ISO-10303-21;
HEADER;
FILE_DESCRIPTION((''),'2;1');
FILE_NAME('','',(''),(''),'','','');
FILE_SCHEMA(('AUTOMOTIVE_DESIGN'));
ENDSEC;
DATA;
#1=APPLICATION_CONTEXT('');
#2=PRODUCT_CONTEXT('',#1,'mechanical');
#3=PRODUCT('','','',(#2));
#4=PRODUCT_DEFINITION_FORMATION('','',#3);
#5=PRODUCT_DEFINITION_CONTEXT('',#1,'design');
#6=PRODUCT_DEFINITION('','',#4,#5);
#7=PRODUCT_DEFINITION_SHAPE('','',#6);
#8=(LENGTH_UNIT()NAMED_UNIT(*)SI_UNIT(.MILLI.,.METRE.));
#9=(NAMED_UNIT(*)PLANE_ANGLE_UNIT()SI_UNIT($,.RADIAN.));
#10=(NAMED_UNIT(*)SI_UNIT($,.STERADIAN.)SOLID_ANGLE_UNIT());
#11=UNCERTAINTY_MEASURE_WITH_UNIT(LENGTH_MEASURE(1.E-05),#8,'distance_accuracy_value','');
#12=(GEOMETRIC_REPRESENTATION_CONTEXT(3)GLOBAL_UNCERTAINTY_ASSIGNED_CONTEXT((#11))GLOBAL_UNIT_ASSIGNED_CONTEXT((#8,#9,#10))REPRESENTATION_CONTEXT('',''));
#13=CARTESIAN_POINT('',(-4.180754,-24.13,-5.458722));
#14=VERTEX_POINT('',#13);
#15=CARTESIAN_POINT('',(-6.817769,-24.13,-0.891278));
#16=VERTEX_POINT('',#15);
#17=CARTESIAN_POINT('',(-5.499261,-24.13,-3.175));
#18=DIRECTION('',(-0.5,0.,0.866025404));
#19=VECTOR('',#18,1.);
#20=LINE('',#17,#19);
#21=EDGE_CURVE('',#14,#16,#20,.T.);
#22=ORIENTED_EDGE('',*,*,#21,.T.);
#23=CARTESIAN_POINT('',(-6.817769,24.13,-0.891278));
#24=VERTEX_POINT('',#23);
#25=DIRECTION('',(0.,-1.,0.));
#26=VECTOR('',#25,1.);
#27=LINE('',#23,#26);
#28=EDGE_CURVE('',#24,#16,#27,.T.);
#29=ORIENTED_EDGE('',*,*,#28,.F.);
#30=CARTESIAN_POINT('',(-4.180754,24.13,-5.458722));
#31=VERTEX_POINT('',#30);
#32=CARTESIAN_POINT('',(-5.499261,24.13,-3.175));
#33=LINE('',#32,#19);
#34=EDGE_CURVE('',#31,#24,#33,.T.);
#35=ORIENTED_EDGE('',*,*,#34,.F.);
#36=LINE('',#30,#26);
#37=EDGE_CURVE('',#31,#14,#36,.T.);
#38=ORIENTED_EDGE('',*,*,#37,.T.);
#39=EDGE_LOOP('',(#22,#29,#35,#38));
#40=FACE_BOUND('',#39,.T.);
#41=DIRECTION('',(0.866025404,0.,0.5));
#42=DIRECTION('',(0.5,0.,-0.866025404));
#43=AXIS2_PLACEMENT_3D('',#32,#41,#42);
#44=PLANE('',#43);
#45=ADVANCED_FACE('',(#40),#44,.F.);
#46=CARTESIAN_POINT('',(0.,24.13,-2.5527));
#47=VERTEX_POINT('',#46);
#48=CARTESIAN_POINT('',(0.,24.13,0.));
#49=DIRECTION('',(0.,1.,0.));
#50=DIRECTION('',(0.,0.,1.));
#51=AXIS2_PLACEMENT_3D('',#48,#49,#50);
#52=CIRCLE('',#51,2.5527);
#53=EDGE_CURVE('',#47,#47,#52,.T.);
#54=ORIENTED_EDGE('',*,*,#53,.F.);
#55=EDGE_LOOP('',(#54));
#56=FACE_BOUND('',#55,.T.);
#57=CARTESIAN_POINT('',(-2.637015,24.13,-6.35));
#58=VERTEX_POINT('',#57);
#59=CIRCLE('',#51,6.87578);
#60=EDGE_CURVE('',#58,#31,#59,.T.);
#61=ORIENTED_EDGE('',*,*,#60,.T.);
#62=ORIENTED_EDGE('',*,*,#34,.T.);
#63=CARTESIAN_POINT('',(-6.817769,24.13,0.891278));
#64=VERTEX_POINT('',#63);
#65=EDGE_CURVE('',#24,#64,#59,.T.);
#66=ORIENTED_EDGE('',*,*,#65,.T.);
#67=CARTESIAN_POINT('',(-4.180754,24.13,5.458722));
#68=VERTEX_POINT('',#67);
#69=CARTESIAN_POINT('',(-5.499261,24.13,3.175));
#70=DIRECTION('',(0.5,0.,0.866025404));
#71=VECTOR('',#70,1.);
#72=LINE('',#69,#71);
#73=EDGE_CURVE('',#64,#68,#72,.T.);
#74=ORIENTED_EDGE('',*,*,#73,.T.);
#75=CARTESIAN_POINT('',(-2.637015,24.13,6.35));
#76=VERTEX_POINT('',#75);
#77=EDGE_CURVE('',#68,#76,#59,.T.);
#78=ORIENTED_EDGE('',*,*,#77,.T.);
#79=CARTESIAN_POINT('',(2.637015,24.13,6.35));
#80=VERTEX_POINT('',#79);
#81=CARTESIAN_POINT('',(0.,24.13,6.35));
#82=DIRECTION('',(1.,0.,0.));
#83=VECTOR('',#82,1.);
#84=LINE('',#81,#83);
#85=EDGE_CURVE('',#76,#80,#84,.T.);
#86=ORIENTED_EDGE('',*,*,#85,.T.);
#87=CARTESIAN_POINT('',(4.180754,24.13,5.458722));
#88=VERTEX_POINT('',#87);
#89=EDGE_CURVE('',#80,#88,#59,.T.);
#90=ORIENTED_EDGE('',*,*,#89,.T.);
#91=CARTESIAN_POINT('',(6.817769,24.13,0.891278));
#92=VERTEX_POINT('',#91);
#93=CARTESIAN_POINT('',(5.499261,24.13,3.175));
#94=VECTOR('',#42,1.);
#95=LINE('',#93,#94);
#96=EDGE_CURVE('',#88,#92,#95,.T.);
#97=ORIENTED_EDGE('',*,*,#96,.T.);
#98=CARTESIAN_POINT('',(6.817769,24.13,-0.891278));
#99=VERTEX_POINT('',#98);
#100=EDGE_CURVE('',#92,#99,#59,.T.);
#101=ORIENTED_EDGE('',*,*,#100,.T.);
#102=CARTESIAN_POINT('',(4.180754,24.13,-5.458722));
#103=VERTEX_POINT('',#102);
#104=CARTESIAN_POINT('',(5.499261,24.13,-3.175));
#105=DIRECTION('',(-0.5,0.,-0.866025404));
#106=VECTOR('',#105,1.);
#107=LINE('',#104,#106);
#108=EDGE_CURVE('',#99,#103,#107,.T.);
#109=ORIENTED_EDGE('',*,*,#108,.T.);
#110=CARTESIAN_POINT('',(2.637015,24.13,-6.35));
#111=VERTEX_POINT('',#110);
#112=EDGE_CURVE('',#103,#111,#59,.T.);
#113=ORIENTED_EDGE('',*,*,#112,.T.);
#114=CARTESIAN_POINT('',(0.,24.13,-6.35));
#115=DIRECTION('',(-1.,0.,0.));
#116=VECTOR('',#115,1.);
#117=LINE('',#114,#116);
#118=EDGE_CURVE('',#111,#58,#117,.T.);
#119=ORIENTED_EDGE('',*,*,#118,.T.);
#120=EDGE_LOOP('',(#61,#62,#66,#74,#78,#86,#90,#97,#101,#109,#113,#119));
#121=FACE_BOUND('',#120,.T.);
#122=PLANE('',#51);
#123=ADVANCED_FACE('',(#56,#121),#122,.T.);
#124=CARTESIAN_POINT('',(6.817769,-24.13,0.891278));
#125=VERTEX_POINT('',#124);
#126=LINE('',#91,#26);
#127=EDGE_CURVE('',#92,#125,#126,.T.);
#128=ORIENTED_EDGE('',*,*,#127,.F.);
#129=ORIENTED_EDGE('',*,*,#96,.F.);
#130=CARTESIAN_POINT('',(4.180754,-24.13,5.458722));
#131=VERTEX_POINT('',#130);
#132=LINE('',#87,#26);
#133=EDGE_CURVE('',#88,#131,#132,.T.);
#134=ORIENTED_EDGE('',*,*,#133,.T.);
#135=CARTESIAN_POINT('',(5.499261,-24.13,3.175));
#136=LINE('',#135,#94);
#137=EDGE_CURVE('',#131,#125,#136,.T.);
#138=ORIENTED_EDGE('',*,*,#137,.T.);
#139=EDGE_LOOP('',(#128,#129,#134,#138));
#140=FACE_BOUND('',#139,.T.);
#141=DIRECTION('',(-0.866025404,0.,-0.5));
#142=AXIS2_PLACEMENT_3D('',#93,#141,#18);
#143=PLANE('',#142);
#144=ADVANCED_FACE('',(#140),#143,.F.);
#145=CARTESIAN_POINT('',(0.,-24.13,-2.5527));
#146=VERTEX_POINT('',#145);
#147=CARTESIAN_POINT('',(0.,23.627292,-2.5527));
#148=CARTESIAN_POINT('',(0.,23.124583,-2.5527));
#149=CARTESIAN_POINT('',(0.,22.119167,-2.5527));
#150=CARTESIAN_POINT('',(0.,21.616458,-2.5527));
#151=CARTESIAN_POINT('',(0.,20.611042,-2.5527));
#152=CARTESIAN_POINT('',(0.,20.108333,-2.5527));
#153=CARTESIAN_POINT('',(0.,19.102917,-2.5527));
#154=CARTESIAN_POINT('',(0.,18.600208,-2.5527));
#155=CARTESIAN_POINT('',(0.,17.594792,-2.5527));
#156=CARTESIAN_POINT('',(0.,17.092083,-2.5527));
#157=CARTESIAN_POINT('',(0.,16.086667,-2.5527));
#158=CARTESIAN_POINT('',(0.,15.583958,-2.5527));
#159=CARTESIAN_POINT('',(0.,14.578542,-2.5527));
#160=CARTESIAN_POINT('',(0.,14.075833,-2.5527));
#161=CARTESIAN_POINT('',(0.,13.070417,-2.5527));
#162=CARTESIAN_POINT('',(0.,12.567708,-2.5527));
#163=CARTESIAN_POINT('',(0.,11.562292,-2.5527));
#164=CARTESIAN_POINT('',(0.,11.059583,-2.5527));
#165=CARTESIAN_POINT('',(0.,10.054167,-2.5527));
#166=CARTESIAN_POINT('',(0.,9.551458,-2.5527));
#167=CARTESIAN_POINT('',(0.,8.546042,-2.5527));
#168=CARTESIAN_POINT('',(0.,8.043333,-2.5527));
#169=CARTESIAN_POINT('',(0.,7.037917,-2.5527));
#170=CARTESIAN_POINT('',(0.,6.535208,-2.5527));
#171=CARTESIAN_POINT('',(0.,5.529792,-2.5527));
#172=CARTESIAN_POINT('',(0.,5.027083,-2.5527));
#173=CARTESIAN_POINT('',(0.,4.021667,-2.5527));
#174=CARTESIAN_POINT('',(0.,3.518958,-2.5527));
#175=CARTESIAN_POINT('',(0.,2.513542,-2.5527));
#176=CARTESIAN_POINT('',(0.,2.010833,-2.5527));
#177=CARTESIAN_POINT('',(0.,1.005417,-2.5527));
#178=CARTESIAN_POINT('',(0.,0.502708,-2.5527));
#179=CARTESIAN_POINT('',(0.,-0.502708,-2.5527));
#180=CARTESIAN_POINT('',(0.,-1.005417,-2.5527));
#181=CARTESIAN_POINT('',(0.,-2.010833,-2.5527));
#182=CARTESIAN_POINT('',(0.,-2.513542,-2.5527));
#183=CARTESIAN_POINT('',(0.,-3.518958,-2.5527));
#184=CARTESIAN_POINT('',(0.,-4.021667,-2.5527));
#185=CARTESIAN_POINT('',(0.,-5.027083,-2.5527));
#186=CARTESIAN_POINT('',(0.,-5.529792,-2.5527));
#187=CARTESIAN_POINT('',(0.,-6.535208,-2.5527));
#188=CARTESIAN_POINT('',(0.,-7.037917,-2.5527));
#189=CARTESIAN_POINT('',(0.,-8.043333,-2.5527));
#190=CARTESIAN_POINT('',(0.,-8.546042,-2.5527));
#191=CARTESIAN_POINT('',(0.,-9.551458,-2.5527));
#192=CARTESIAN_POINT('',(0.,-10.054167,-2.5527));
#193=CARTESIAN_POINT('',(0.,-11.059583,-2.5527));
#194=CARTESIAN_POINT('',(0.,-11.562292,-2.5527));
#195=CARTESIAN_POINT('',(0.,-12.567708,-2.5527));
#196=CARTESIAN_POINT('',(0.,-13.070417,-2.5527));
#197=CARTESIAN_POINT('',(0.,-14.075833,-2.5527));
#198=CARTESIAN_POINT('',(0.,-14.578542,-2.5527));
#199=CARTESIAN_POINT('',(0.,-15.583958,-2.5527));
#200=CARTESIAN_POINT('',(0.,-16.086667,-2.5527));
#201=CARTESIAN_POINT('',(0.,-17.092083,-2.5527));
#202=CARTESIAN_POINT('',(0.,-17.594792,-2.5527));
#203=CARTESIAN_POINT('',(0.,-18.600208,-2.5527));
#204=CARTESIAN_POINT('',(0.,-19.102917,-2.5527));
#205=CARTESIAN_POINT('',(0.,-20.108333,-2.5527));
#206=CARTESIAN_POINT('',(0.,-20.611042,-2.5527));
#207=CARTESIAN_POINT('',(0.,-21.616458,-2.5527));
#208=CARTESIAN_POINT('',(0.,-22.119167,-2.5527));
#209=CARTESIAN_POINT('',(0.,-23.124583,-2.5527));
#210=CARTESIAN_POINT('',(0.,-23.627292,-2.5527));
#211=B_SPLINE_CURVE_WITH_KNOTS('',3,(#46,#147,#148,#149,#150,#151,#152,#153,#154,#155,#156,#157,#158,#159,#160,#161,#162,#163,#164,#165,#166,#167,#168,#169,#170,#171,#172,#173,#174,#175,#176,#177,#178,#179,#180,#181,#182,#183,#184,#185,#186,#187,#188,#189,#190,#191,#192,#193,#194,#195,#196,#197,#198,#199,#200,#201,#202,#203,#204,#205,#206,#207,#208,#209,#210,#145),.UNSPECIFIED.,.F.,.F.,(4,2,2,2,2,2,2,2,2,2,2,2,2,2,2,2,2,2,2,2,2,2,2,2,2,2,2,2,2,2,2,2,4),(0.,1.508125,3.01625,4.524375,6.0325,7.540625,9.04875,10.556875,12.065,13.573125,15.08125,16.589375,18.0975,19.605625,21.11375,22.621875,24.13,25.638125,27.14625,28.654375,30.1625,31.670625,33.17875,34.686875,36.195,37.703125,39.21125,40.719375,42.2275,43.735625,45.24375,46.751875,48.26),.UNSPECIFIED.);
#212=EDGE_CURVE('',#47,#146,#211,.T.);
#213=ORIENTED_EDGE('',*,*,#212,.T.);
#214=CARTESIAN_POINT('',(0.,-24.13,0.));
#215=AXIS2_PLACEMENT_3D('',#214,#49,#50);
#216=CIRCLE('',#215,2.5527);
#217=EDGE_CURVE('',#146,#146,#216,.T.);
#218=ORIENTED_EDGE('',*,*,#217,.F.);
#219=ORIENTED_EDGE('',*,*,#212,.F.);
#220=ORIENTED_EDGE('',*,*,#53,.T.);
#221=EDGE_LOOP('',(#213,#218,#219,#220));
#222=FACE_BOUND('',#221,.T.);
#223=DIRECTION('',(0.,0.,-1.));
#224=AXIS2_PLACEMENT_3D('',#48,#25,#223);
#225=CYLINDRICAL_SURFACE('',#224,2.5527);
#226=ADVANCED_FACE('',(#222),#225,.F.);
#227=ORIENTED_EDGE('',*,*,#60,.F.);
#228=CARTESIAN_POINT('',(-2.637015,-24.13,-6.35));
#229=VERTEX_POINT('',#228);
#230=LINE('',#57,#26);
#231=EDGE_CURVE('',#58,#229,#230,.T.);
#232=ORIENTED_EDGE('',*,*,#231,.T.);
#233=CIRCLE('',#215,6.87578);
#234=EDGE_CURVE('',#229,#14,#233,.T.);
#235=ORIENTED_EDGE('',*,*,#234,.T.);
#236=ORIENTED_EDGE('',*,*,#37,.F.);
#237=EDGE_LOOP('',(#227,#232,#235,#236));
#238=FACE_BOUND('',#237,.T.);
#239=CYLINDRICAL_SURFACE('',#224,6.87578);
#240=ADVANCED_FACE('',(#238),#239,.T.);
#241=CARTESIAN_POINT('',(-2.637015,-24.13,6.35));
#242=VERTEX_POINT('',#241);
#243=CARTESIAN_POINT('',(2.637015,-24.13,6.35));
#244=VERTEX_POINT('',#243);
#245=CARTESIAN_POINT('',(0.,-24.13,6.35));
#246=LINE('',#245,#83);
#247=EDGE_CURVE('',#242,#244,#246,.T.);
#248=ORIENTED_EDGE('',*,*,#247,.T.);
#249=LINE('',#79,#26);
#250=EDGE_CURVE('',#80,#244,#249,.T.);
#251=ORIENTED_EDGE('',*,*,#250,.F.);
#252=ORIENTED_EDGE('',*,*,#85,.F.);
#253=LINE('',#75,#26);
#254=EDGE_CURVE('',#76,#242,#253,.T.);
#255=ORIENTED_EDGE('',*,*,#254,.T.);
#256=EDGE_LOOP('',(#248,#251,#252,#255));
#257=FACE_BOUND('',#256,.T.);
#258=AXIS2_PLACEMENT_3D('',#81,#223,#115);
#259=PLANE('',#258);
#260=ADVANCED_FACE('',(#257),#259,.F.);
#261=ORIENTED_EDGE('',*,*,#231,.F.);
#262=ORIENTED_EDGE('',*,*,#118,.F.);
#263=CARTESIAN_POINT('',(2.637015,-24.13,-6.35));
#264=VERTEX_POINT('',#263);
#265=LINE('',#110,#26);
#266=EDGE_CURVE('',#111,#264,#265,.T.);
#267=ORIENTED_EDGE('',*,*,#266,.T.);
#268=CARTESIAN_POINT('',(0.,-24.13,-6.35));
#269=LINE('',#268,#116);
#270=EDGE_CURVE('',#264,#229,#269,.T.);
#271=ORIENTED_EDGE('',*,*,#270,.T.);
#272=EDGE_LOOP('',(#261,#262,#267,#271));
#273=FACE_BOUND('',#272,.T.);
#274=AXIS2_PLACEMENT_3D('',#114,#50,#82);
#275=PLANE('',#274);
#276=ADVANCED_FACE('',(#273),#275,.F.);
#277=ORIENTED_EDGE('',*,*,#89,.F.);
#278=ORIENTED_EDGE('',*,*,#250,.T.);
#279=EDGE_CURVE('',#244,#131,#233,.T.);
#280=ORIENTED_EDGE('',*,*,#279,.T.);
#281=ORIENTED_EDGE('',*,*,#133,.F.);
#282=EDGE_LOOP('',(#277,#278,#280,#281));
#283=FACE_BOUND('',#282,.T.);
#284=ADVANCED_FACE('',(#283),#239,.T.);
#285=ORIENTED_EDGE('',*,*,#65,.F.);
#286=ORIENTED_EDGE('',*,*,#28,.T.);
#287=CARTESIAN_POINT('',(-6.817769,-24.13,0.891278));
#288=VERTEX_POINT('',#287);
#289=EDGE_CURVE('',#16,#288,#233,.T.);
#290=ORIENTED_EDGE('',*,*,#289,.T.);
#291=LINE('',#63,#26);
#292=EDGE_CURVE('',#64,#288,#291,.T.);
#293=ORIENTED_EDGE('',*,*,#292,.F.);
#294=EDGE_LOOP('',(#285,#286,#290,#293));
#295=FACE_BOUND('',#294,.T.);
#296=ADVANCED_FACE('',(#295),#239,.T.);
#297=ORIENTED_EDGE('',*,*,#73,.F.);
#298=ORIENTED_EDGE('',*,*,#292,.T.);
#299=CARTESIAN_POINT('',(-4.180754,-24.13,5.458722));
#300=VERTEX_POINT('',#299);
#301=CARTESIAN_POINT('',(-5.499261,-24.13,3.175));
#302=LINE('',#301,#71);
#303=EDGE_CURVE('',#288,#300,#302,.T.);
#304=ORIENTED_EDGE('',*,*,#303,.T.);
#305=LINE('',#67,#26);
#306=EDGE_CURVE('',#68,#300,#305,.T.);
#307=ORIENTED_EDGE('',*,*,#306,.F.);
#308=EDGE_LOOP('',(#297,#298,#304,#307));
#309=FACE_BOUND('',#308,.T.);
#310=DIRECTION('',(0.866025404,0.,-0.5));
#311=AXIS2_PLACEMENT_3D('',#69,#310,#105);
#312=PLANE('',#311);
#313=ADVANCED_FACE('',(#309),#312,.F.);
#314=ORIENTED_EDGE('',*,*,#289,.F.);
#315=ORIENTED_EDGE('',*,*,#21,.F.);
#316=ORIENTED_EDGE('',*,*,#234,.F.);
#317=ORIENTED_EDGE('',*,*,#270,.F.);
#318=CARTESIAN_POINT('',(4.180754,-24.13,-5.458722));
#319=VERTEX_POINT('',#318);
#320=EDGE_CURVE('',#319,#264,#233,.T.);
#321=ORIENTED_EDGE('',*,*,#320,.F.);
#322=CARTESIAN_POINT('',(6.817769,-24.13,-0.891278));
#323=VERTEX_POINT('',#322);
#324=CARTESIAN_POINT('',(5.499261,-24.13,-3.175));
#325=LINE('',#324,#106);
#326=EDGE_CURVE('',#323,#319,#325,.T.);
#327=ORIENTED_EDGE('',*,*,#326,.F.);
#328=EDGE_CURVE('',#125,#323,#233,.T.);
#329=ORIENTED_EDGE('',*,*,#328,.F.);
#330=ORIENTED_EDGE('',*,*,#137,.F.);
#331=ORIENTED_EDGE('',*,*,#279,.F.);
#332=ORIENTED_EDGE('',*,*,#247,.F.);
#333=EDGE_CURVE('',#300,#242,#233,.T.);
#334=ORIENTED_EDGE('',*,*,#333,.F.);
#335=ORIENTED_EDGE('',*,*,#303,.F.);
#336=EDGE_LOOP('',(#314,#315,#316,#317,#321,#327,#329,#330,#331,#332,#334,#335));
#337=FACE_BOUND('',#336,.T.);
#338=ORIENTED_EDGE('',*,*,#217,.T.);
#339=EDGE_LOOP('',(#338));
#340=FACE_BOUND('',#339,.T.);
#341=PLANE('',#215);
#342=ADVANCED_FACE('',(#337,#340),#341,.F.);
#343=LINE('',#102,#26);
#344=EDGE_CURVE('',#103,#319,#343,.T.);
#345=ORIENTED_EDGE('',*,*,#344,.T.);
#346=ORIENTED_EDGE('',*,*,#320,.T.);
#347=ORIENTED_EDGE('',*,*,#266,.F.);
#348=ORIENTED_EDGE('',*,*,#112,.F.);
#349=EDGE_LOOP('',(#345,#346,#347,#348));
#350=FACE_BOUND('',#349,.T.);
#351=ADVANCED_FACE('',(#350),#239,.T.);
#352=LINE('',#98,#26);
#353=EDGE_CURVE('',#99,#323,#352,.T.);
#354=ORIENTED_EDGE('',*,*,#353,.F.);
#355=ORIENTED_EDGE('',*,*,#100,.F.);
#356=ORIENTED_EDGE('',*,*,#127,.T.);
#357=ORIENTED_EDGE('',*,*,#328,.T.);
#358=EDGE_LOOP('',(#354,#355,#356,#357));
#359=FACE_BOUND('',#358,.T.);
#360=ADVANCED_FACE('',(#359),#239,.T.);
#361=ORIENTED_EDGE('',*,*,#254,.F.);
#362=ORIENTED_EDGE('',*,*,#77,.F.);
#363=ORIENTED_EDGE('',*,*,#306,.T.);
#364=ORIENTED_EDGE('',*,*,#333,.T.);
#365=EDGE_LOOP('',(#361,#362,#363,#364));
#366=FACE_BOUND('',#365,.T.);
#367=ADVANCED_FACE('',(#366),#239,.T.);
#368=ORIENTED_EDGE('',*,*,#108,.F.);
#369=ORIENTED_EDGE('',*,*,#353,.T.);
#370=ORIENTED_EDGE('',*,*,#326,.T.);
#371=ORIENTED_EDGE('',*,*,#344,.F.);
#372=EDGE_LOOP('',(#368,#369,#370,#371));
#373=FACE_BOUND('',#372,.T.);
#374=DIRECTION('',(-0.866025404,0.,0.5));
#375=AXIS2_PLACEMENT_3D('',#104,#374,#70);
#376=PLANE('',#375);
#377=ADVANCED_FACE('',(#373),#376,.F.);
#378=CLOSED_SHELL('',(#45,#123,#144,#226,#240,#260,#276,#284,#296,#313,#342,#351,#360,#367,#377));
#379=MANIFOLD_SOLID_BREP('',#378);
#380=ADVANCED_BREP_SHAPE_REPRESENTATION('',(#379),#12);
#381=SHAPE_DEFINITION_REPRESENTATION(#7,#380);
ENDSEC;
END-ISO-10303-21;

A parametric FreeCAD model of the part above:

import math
import FreeCAD as App
import Part
import Sketcher
Q = App.Units.Quantity

doc = App.newDocument("Part")
body = doc.addObject("PartDesign::Body", "Body")

sketch1 = body.newObject("Sketcher::SketchObject", "Sketch")
sketch1.AttachmentSupport = (doc.getObject("XZ_Plane"), [""])
sketch1.MapMode = "FlatFace"
sketch1.addGeometry(Part.ArcOfCircle(Part.Circle(App.Vector(0, 0, 0), App.Vector(0, 0, 1), 6.87578), math.radians(52.552038), math.radians(67.447962)), False)
sketch1.addGeometry(Part.LineSegment(App.Vector(4.180754, 5.458722, 0), App.Vector(6.817769, 0.891278, 0)), False)
sketch1.addGeometry(Part.ArcOfCircle(Part.Circle(App.Vector(0, 0, 0), App.Vector(0, 0, 1), 6.87578), math.radians(0), math.radians(7.447962)), False)
sketch1.addGeometry(Part.ArcOfCircle(Part.Circle(App.Vector(0, 0, 0), App.Vector(0, 0, 1), 6.87578), math.radians(-7.447962), math.radians(0)), False)
sketch1.addGeometry(Part.LineSegment(App.Vector(6.817769, -0.891278, 0), App.Vector(4.180754, -5.458722, 0)), False)
sketch1.addGeometry(Part.ArcOfCircle(Part.Circle(App.Vector(0, 0, 0), App.Vector(0, 0, 1), 6.87578), math.radians(-67.447962), math.radians(-52.552038)), False)
sketch1.addGeometry(Part.LineSegment(App.Vector(2.637015, -6.35, 0), App.Vector(-2.637015, -6.35, 0)), False)
sketch1.addGeometry(Part.ArcOfCircle(Part.Circle(App.Vector(0, 0, 0), App.Vector(0, 0, 1), 6.87578), math.radians(-127.447962), math.radians(-112.552038)), False)
sketch1.addGeometry(Part.LineSegment(App.Vector(-4.180754, -5.458722, 0), App.Vector(-6.817769, -0.891278, 0)), False)
sketch1.addGeometry(Part.ArcOfCircle(Part.Circle(App.Vector(0, 0, 0), App.Vector(0, 0, 1), 6.87578), math.radians(172.552038), math.radians(187.447962)), False)
sketch1.addGeometry(Part.LineSegment(App.Vector(-6.817769, 0.891278, 0), App.Vector(-4.180754, 5.458722, 0)), False)
sketch1.addGeometry(Part.ArcOfCircle(Part.Circle(App.Vector(0, 0, 0), App.Vector(0, 0, 1), 6.87578), math.radians(112.552038), math.radians(127.447962)), False)
sketch1.addGeometry(Part.LineSegment(App.Vector(-2.637015, 6.35, 0), App.Vector(2.637015, 6.35, 0)), False)
sketch1.addGeometry(Part.Circle(App.Vector(0, 0, 0), App.Vector(0, 0, 1), 2.5527), False)
sketch1.addConstraint(Sketcher.Constraint("Coincident", 0, 1, 1, 1))
sketch1.addConstraint(Sketcher.Constraint("Coincident", 1, 2, 2, 2))
sketch1.addConstraint(Sketcher.Constraint("Tangent", 2, 1, 3, 2))
sketch1.addConstraint(Sketcher.Constraint("Coincident", 3, 1, 4, 1))
sketch1.addConstraint(Sketcher.Constraint("Coincident", 4, 2, 5, 2))
sketch1.addConstraint(Sketcher.Constraint("Coincident", 5, 1, 6, 1))
sketch1.addConstraint(Sketcher.Constraint("Coincident", 6, 2, 7, 2))
sketch1.addConstraint(Sketcher.Constraint("Coincident", 7, 1, 8, 1))
sketch1.addConstraint(Sketcher.Constraint("Coincident", 8, 2, 9, 2))
sketch1.addConstraint(Sketcher.Constraint("Coincident", 9, 1, 10, 1))
sketch1.addConstraint(Sketcher.Constraint("Coincident", 10, 2, 11, 2))
sketch1.addConstraint(Sketcher.Constraint("Coincident", 11, 1, 12, 1))
sketch1.addConstraint(Sketcher.Constraint("Coincident", 12, 2, 0, 2))
sketch1.addConstraint(Sketcher.Constraint("Horizontal", 6))
sketch1.addConstraint(Sketcher.Constraint("Horizontal", 12))
sketch1.addConstraint(Sketcher.Constraint("Coincident", 0, 3, -1, 1))
sketch1.addConstraint(Sketcher.Constraint("Coincident", 2, 3, -1, 1))
sketch1.addConstraint(Sketcher.Constraint("Coincident", 5, 3, -1, 1))
sketch1.addConstraint(Sketcher.Constraint("Coincident", 7, 3, -1, 1))
sketch1.addConstraint(Sketcher.Constraint("Coincident", 9, 3, -1, 1))
sketch1.addConstraint(Sketcher.Constraint("Coincident", 11, 3, -1, 1))
sketch1.addConstraint(Sketcher.Constraint("Coincident", 13, 3, -1, 1))
sketch1.addConstraint(Sketcher.Constraint("Equal", 0, 2))
sketch1.addConstraint(Sketcher.Constraint("Equal", 2, 3))
sketch1.addConstraint(Sketcher.Constraint("Equal", 3, 5))
sketch1.addConstraint(Sketcher.Constraint("Equal", 5, 7))
sketch1.addConstraint(Sketcher.Constraint("Equal", 7, 9))
sketch1.addConstraint(Sketcher.Constraint("Equal", 9, 11))
sketch1.addConstraint(Sketcher.Constraint("PointOnObject", 2, 1, -1))
sketch1.addConstraint(Sketcher.Constraint("Parallel", 1, 8))
sketch1.addConstraint(Sketcher.Constraint("Parallel", 4, 10))
sketch1.addConstraint(Sketcher.Constraint("Horizontal", 4, 2, 7, 1))
sketch1.addConstraint(Sketcher.Constraint("Horizontal", 3, 1, 8, 2))
sketch1.addConstraint(Sketcher.Constraint("Horizontal", 1, 2, 9, 1))
sketch1.addConstraint(Sketcher.Constraint("Vertical", 1, 2, 3, 1))
sketch1.addConstraint(Sketcher.Constraint("Vertical", 6, 2, 11, 1))
sketch1.addConstraint(Sketcher.Constraint("Diameter", 13, Q("0.201 in")))
sketch1.addConstraint(Sketcher.Constraint("Angle", 1, Q("-60 deg")))
sketch1.addConstraint(Sketcher.Constraint("Radius", 0, Q("0.2707 in")))
sketch1.addConstraint(Sketcher.Constraint("DistanceY", 5, 1, -1, 1, Q("0.25 in")))
sketch1.addConstraint(Sketcher.Constraint("Distance", 1, Q("5.274031 mm")))
pad1 = body.newObject("PartDesign::Pad", "Pad")
pad1.Profile = sketch1
pad1.Length = Q("1.9 in")
pad1.Midplane = True

doc.recompute()
